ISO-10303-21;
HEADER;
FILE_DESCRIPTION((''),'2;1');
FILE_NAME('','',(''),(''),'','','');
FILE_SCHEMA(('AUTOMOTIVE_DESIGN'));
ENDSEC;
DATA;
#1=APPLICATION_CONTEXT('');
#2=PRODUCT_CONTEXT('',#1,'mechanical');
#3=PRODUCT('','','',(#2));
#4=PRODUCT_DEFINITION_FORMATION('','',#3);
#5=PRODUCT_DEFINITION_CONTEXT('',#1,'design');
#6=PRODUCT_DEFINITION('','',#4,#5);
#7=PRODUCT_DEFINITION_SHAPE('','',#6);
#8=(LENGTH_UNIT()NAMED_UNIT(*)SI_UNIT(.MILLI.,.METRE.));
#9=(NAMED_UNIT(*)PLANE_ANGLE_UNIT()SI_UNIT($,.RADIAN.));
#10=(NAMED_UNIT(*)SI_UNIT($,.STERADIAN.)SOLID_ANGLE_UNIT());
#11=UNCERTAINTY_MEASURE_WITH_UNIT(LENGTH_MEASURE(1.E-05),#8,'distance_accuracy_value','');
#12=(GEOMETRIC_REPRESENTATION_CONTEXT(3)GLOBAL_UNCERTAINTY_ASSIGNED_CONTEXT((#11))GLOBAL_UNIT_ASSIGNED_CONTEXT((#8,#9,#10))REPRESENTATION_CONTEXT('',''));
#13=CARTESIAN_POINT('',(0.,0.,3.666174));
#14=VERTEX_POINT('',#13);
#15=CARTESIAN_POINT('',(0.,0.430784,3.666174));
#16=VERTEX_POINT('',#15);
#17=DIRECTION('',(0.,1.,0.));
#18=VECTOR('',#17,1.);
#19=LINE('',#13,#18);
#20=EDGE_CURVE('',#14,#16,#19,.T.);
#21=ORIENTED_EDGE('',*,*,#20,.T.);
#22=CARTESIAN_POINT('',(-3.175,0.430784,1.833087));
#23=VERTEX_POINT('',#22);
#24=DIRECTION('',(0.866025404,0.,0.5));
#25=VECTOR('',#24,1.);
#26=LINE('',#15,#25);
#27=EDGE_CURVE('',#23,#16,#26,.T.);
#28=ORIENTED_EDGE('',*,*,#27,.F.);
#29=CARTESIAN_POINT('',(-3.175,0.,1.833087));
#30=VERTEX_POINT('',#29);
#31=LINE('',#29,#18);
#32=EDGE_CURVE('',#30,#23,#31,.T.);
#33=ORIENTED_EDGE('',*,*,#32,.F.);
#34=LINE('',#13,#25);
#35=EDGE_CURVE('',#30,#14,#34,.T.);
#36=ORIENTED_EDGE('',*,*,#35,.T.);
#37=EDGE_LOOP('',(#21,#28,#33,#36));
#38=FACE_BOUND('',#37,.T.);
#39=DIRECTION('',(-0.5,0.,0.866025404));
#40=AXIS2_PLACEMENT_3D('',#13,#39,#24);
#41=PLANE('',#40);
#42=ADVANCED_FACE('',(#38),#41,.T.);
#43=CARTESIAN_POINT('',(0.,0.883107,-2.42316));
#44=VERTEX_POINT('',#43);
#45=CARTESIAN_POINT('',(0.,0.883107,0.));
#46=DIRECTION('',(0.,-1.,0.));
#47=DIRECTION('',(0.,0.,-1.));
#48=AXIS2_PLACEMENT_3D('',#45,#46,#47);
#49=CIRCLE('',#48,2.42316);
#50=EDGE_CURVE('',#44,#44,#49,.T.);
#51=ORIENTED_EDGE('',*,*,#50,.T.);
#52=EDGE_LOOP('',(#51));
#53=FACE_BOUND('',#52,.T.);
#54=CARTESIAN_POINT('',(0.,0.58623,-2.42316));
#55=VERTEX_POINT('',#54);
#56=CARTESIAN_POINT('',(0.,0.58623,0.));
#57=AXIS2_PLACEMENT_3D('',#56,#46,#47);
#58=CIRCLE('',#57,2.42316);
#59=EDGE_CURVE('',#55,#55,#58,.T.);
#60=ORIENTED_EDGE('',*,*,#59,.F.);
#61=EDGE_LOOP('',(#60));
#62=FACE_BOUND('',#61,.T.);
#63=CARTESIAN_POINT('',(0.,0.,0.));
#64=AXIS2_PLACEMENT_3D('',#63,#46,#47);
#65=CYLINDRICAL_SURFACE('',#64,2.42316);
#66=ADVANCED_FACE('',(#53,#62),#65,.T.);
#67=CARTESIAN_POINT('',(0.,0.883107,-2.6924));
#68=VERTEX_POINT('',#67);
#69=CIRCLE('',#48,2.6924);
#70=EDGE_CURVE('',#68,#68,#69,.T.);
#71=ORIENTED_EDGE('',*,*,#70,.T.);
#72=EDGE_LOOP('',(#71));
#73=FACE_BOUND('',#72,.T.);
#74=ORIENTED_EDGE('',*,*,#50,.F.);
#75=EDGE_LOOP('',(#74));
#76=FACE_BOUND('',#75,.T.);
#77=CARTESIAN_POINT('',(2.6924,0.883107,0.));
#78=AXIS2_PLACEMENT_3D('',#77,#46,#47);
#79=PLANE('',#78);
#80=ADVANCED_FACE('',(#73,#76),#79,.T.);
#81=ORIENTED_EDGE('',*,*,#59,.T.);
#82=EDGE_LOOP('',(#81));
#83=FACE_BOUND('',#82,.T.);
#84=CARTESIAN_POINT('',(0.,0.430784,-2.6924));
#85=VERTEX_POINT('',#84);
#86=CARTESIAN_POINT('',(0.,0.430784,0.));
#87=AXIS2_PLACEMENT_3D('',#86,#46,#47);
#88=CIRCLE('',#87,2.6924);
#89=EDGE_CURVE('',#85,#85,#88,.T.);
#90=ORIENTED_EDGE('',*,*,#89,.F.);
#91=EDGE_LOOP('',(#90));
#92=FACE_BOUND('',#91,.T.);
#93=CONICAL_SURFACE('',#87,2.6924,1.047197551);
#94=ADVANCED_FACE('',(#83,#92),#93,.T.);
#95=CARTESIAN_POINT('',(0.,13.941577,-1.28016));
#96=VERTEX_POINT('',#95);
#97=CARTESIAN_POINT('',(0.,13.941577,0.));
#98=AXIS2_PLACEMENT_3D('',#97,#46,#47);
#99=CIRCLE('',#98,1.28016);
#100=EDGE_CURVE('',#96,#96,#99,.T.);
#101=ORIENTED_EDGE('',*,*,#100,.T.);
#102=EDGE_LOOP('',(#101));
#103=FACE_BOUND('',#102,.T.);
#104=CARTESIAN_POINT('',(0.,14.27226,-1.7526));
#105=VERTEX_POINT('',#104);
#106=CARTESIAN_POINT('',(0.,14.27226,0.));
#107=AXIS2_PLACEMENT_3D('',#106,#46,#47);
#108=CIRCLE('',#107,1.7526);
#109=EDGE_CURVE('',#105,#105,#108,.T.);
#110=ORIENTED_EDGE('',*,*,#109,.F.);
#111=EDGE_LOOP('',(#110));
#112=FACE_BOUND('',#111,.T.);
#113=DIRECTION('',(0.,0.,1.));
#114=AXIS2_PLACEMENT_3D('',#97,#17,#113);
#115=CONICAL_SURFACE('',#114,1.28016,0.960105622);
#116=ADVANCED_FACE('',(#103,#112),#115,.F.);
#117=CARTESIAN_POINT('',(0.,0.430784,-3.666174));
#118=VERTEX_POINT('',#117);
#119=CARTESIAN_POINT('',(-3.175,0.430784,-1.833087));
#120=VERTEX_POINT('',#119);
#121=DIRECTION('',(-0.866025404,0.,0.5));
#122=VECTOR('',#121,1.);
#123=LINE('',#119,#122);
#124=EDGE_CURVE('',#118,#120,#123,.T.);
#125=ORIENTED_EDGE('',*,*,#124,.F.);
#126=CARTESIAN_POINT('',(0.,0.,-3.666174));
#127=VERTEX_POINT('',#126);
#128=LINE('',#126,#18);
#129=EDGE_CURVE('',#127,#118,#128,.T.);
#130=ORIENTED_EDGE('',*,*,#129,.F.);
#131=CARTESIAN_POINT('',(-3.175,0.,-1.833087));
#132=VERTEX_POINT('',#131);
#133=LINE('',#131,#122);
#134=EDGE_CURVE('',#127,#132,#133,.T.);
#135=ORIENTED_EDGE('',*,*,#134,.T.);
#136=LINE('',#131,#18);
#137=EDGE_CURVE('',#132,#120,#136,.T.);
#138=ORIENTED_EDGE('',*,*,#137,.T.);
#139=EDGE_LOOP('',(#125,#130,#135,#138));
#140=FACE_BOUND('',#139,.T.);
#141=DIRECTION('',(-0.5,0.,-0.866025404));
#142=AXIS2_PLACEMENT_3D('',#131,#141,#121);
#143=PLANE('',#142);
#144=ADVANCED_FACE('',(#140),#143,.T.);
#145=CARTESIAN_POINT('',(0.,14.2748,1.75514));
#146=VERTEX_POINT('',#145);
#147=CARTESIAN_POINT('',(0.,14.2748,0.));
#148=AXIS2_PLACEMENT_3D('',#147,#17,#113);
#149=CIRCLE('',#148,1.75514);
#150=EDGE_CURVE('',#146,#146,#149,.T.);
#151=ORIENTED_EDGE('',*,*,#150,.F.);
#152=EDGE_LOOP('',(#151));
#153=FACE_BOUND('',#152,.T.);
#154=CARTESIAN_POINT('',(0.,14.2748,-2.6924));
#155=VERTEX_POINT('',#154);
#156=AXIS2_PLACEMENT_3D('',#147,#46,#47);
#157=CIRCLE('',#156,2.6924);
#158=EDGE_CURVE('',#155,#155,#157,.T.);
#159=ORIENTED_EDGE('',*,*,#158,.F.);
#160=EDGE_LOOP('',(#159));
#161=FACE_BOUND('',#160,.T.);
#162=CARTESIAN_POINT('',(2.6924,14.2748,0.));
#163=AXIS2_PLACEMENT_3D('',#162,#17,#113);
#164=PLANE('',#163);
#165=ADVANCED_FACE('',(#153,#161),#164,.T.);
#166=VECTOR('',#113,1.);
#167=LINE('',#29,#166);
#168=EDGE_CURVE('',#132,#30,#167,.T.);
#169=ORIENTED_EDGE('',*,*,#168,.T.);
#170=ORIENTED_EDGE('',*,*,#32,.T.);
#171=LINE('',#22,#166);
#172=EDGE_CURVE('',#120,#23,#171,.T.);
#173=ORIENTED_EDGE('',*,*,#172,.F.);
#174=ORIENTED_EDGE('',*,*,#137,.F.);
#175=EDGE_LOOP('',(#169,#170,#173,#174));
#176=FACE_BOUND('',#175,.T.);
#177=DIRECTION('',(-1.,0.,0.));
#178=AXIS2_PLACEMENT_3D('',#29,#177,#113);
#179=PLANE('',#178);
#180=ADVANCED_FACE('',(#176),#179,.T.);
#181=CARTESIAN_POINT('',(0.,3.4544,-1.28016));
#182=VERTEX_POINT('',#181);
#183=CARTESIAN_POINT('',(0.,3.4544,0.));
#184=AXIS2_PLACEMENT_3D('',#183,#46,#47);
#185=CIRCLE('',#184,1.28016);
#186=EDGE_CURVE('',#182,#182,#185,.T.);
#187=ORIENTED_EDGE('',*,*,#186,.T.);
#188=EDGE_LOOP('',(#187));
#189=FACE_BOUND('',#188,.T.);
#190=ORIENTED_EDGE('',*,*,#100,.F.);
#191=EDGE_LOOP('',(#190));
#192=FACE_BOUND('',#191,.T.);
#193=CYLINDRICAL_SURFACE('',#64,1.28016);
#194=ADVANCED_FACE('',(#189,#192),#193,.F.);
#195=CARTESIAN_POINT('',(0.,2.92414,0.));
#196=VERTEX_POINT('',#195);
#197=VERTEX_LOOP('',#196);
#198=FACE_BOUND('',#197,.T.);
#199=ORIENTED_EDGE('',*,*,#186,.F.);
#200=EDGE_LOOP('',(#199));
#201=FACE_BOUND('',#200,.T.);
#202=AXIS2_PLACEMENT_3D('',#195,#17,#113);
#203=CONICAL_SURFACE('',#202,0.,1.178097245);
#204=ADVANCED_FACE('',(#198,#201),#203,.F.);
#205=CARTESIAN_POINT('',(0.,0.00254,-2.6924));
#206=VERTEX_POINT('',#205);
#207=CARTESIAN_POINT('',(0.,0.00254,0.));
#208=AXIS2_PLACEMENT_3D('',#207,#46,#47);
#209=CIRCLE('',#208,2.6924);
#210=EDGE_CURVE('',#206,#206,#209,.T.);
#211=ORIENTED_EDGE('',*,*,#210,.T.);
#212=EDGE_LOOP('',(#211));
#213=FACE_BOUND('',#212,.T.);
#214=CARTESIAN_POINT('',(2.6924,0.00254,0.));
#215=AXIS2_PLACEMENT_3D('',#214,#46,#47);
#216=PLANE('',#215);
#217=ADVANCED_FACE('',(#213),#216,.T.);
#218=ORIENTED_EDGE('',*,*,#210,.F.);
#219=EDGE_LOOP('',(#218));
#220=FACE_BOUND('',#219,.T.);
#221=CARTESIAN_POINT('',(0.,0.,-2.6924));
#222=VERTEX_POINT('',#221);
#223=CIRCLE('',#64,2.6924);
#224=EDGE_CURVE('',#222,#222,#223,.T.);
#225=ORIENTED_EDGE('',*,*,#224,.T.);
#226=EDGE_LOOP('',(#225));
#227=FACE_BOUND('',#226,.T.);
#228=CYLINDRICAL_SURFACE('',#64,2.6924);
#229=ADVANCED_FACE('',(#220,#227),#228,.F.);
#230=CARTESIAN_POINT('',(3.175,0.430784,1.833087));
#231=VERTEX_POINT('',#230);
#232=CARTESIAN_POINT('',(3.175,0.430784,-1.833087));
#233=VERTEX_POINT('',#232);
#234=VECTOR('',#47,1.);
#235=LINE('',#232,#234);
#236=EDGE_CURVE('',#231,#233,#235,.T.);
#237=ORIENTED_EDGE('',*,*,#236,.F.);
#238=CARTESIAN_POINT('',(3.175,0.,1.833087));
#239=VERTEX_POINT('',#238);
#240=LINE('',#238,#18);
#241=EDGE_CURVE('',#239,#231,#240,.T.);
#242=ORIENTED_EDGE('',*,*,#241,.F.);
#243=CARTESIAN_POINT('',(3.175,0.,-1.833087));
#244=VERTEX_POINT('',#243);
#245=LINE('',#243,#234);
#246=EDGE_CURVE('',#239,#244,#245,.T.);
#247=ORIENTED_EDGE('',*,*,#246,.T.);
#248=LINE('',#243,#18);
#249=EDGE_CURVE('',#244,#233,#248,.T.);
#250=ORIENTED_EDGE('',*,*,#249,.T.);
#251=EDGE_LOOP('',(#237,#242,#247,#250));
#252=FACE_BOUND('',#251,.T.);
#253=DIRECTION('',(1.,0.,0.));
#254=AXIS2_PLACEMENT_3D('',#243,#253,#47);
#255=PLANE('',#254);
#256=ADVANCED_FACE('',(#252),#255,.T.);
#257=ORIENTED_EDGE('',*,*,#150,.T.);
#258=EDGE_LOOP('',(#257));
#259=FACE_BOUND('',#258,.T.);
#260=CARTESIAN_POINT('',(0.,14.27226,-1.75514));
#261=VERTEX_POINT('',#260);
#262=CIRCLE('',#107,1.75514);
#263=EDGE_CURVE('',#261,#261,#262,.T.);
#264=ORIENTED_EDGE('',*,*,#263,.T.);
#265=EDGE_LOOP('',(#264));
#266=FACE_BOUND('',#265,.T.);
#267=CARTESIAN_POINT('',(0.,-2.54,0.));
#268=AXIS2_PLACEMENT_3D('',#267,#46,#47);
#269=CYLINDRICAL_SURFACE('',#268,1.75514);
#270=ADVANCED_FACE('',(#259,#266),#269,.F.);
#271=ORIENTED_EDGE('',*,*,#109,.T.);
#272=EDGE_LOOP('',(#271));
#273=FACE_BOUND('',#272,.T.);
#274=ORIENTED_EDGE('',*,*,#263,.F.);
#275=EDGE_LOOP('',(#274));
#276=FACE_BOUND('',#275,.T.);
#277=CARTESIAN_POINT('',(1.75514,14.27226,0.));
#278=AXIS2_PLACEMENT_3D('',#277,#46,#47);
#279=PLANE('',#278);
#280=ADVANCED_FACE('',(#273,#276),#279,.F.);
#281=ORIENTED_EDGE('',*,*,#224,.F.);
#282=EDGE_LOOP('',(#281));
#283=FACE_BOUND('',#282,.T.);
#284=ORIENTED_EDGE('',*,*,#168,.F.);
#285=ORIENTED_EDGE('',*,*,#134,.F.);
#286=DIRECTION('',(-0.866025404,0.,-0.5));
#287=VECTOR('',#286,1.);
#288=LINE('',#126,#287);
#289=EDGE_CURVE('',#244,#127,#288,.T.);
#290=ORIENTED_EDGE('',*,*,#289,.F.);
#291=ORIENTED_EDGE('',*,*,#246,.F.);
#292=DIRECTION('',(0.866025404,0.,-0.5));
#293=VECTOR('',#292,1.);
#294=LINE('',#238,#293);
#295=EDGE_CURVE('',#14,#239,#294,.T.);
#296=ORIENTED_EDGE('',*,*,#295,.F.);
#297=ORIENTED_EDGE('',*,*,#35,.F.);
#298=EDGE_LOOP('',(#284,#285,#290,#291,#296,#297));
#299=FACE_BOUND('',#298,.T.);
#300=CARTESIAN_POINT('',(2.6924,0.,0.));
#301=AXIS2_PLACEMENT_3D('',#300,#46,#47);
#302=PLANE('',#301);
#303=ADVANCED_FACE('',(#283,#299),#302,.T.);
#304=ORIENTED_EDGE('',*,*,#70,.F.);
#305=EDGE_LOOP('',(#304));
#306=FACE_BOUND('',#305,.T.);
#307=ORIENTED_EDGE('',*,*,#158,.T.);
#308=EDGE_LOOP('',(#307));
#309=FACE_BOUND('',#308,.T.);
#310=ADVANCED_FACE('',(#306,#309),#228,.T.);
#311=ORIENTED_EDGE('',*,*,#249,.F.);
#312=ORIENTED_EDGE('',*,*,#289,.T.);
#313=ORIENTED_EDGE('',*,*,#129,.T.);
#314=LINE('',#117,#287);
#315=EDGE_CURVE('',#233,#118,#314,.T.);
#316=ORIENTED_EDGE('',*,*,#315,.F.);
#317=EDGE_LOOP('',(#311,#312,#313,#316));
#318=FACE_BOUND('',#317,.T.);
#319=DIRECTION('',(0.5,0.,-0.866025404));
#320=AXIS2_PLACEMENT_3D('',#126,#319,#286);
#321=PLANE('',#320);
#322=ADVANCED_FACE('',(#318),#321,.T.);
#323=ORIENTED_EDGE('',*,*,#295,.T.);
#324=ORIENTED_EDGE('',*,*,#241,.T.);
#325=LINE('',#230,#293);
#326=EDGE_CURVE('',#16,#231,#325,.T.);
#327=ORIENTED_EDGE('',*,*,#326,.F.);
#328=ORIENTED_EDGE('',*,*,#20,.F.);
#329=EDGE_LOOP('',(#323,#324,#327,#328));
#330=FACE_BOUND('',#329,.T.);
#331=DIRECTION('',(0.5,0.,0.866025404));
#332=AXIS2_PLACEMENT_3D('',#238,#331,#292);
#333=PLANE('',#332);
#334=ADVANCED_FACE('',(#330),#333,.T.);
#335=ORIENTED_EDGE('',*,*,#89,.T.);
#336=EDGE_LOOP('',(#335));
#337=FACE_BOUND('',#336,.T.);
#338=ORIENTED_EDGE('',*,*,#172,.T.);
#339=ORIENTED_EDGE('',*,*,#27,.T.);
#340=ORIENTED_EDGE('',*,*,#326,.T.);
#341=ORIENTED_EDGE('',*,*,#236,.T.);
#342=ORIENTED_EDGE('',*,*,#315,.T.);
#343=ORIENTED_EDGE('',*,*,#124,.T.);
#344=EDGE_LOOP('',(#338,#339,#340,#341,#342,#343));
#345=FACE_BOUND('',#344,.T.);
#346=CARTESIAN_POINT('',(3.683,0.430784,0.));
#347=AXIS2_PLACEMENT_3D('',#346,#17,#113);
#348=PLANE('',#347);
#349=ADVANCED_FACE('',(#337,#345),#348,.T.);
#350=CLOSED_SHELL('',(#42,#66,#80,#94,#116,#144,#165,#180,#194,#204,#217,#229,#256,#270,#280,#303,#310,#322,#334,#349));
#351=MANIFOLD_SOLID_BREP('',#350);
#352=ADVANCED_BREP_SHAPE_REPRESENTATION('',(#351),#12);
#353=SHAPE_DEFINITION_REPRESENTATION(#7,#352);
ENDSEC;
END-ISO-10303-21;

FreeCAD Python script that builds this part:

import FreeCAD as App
import Part
import Sketcher
from FreeCAD import Vector
Q = App.Units.Quantity

doc = App.newDocument("Part")
body = doc.addObject("PartDesign::Body", "Body")

# Sketch on XY plane
sketch1 = doc.addObject("Sketcher::SketchObject", "Sketch")
body.addObject(sketch1)
sketch1.AttachmentSupport = (doc.XY_Plane, [""])
sketch1.MapMode = "FlatFace"
sketch1.addGeometry(Part.LineSegment(Vector(2.6924, 0, 0), Vector(3.683, 0, 0)), False)
sketch1.addGeometry(Part.LineSegment(Vector(3.683, 0, 0), Vector(3.683, 0.4308, 0)), False)
sketch1.addGeometry(Part.LineSegment(Vector(3.683, 0.4308, 0), Vector(2.6924, 0.4308, 0)), False)
sketch1.addGeometry(Part.LineSegment(Vector(2.6924, 0.4308, 0), Vector(2.4232, 0.5862, 0)), False)
sketch1.addGeometry(Part.LineSegment(Vector(2.4232, 0.5862, 0), Vector(2.4232, 0.8831, 0)), False)
sketch1.addGeometry(Part.LineSegment(Vector(2.4232, 0.8831, 0), Vector(2.6924, 0.8831, 0)), False)
sketch1.addGeometry(Part.LineSegment(Vector(2.6924, 0.8831, 0), Vector(2.6924, 14.2748, 0)), False)
sketch1.addGeometry(Part.LineSegment(Vector(2.6924, 14.2748, 0), Vector(1.2802, 14.2748, 0)), False)
sketch1.addGeometry(Part.LineSegment(Vector(1.2802, 14.2748, 0), Vector(1.2802, 7.4168, 0)), False)
sketch1.addGeometry(Part.LineSegment(Vector(1.2802, 7.4168, 0), Vector(0, 7.4168, 0)), False)
sketch1.addGeometry(Part.LineSegment(Vector(0, 7.4168, 0), Vector(0, 0.0025, 0)), False)
sketch1.addGeometry(Part.LineSegment(Vector(0, 0.0025, 0), Vector(2.6924, 0.0025, 0)), False)
sketch1.addGeometry(Part.LineSegment(Vector(2.6924, 0.0025, 0), Vector(2.6924, 0, 0)), False)
sketch1.addConstraint(Sketcher.Constraint("Coincident", 0, 2, 1, 1))
sketch1.addConstraint(Sketcher.Constraint("Coincident", 1, 2, 2, 1))
sketch1.addConstraint(Sketcher.Constraint("Coincident", 2, 2, 3, 1))
sketch1.addConstraint(Sketcher.Constraint("Coincident", 3, 2, 4, 1))
sketch1.addConstraint(Sketcher.Constraint("Coincident", 4, 2, 5, 1))
sketch1.addConstraint(Sketcher.Constraint("Coincident", 5, 2, 6, 1))
sketch1.addConstraint(Sketcher.Constraint("Coincident", 6, 2, 7, 1))
sketch1.addConstraint(Sketcher.Constraint("Coincident", 7, 2, 8, 1))
sketch1.addConstraint(Sketcher.Constraint("Coincident", 8, 2, 9, 1))
sketch1.addConstraint(Sketcher.Constraint("Coincident", 9, 2, 10, 1))
sketch1.addConstraint(Sketcher.Constraint("Coincident", 10, 2, 11, 1))
sketch1.addConstraint(Sketcher.Constraint("Coincident", 11, 2, 12, 1))
sketch1.addConstraint(Sketcher.Constraint("Coincident", 12, 2, 0, 1))
sketch1.addConstraint(Sketcher.Constraint("Horizontal", 0))
sketch1.addConstraint(Sketcher.Constraint("Vertical", 1))
sketch1.addConstraint(Sketcher.Constraint("Horizontal", 2))
sketch1.addConstraint(Sketcher.Constraint("Vertical", 4))
sketch1.addConstraint(Sketcher.Constraint("Horizontal", 5))
sketch1.addConstraint(Sketcher.Constraint("Vertical", 6))
sketch1.addConstraint(Sketcher.Constraint("Horizontal", 7))
sketch1.addConstraint(Sketcher.Constraint("Vertical", 8))
sketch1.addConstraint(Sketcher.Constraint("Horizontal", 9))
sketch1.addConstraint(Sketcher.Constraint("Vertical", 10))
sketch1.addConstraint(Sketcher.Constraint("Horizontal", 11))
sketch1.addConstraint(Sketcher.Constraint("Vertical", 12))
sketch1.addConstraint(Sketcher.Constraint("PointOnObject", 0, 2, -1))
sketch1.addConstraint(Sketcher.Constraint("PointOnObject", 9, 2, -2))
sketch1.addConstraint(Sketcher.Constraint("Vertical", 2, 2, 5, 2))
sketch1.addConstraint(Sketcher.Constraint("Vertical", 6, 2, 11, 2))
sketch1.addConstraint(Sketcher.Constraint("Angle", 3, Q("150 deg")))
sketch1.addConstraint(Sketcher.Constraint("DistanceY", 8, 2, 8, 1, Q("0.27 in")))
sketch1.addConstraint(Sketcher.Constraint("DistanceX", 0, 1, 0, 2, Q("0.039 in")))
sketch1.addConstraint(Sketcher.Constraint("DistanceX", 11, 1, 11, 2, Q("0.106 in")))
sketch1.addConstraint(Sketcher.Constraint("DistanceX", 5, 1, 5, 2, Q("0.0106 in")))
sketch1.addConstraint(Sketcher.Constraint("DistanceX", 7, 2, 7, 1, Q("0.0556 in")))
sketch1.addConstraint(Sketcher.Constraint("DistanceY", 10, 2, 10, 1, Q("0.2919 in")))
sketch1.addConstraint(Sketcher.Constraint("DistanceY", 12, 2, 12, 1, Q("0.0001 in")))
sketch1.addConstraint(Sketcher.Constraint("DistanceY", 1, 1, 1, 2, Q("0.430784 mm")))
sketch1.addConstraint(Sketcher.Constraint("DistanceY", 4, 1, 4, 2, Q("0.296877 mm")))
revolution = doc.addObject("PartDesign::Revolution", "Revolution")
body.addObject(revolution)
revolution.Profile = sketch1
revolution.ReferenceAxis = (sketch1, ["V_Axis"])
revolution.Angle = 360

# Sketch on XY plane
sketch2 = doc.addObject("Sketcher::SketchObject", "Sketch001")
body.addObject(sketch2)
sketch2.AttachmentSupport = (doc.XY_Plane, [""])
sketch2.MapMode = "FlatFace"
sketch2.addGeometry(Part.LineSegment(Vector(1.3, 3.5, 0), Vector(1.3, 14.3, 0)), False)
sketch2.addGeometry(Part.LineSegment(Vector(1.3, 14.3, 0), Vector(0, 14.3, 0)), False)
sketch2.addGeometry(Part.LineSegment(Vector(0, 14.3, 0), Vector(0, 2.9, 0)), False)
sketch2.addGeometry(Part.LineSegment(Vector(0, 2.9, 0), Vector(1.3, 3.5, 0)), False)
sketch2.addConstraint(Sketcher.Constraint("Coincident", 0, 2, 1, 1))
sketch2.addConstraint(Sketcher.Constraint("Coincident", 1, 2, 2, 1))
sketch2.addConstraint(Sketcher.Constraint("Coincident", 2, 2, 3, 1))
sketch2.addConstraint(Sketcher.Constraint("Coincident", 3, 2, 0, 1))
sketch2.addConstraint(Sketcher.Constraint("Vertical", 0))
sketch2.addConstraint(Sketcher.Constraint("Horizontal", 1))
sketch2.addConstraint(Sketcher.Constraint("Vertical", 2))
sketch2.addConstraint(Sketcher.Constraint("PointOnObject", 1, 2, -2))
sketch2.addConstraint(Sketcher.Constraint("Angle", 3, Q("22.5 deg")))
sketch2.addConstraint(Sketcher.Constraint("DistanceY", 0, 1, 0, 2, Q("0.426 in")))
sketch2.addConstraint(Sketcher.Constraint("DistanceX", 1, 2, 1, 1, Q("0.0504 in")))
sketch2.addConstraint(Sketcher.Constraint("DistanceY", -1, 1, 0, 2, Q("0.562 in")))
groove = doc.addObject("PartDesign::Groove", "Groove")
body.addObject(groove)
groove.Profile = sketch2
groove.ReferenceAxis = (sketch2, ["V_Axis"])
groove.Angle = 360

# Sketch on XY plane
sketch3 = doc.addObject("Sketcher::SketchObject", "Sketch002")
body.addObject(sketch3)
sketch3.AttachmentSupport = (doc.XY_Plane, [""])
sketch3.MapMode = "FlatFace"
sketch3.addGeometry(Part.LineSegment(Vector(1.7551, 14.2723, 0), Vector(1.7551, 14.5288, 0)), False)
sketch3.addGeometry(Part.LineSegment(Vector(1.7551, 14.5288, 0), Vector(1.2802, 14.5288, 0)), False)
sketch3.addGeometry(Part.LineSegment(Vector(1.2802, 14.5288, 0), Vector(1.2802, 13.9416, 0)), False)
sketch3.addGeometry(Part.LineSegment(Vector(1.2802, 13.9416, 0), Vector(1.7526, 14.2723, 0)), False)
sketch3.addGeometry(Part.LineSegment(Vector(1.7526, 14.2723, 0), Vector(1.7551, 14.2723, 0)), False)
sketch3.addConstraint(Sketcher.Constraint("Coincident", 0, 2, 1, 1))
sketch3.addConstraint(Sketcher.Constraint("Coincident", 1, 2, 2, 1))
sketch3.addConstraint(Sketcher.Constraint("Coincident", 2, 2, 3, 1))
sketch3.addConstraint(Sketcher.Constraint("Coincident", 3, 2, 4, 1))
sketch3.addConstraint(Sketcher.Constraint("Coincident", 4, 2, 0, 1))
sketch3.addConstraint(Sketcher.Constraint("Vertical", 0))
sketch3.addConstraint(Sketcher.Constraint("Horizontal", 1))
sketch3.addConstraint(Sketcher.Constraint("Vertical", 2))
sketch3.addConstraint(Sketcher.Constraint("Horizontal", 4))
sketch3.addConstraint(Sketcher.Constraint("Angle", 3, Q("34.99 deg")))
sketch3.addConstraint(Sketcher.Constraint("DistanceX", 1, 2, 1, 1, Q("0.0187 in")))
sketch3.addConstraint(Sketcher.Constraint("DistanceX", 4, 1, 4, 2, Q("0.0001 in")))
sketch3.addConstraint(Sketcher.Constraint("DistanceY", 0, 1, 0, 2, Q("0.0101 in")))
sketch3.addConstraint(Sketcher.Constraint("DistanceY", -1, 1, 0, 2, Q("0.572 in")))
sketch3.addConstraint(Sketcher.Constraint("DistanceX", -1, 1, 3, 2, Q("0.069 in")))
groove2 = doc.addObject("PartDesign::Groove", "Groove001")
body.addObject(groove2)
groove2.Profile = sketch3
groove2.ReferenceAxis = (sketch3, ["V_Axis"])
groove2.Angle = 360

# Sketch on XZ plane
sketch4 = doc.addObject("Sketcher::SketchObject", "Sketch003")
body.addObject(sketch4)
sketch4.AttachmentSupport = (doc.XZ_Plane, [""])
sketch4.MapMode = "FlatFace"
sketch4.AttachmentOffset = App.Placement(Vector(0, 0, -0.430784), App.Rotation())
sketch4.addGeometry(Part.Circle(Vector(0, 0, 0), Vector(0, 0, 1), 3.7), False)
sketch4.addGeometry(Part.LineSegment(Vector(3.2, 1.8, 0), Vector(0, 3.7, 0)), False)
sketch4.addGeometry(Part.LineSegment(Vector(0, 3.7, 0), Vector(-3.2, 1.8, 0)), False)
sketch4.addGeometry(Part.LineSegment(Vector(-3.2, 1.8, 0), Vector(-3.2, -1.8, 0)), False)
sketch4.addGeometry(Part.LineSegment(Vector(-3.2, -1.8, 0), Vector(0, -3.7, 0)), False)
sketch4.addGeometry(Part.LineSegment(Vector(0, -3.7, 0), Vector(3.2, -1.8, 0)), False)
sketch4.addGeometry(Part.LineSegment(Vector(3.2, -1.8, 0), Vector(3.2, 1.8, 0)), False)
sketch4.addConstraint(Sketcher.Constraint("Coincident", 1, 2, 2, 1))
sketch4.addConstraint(Sketcher.Constraint("Coincident", 2, 2, 3, 1))
sketch4.addConstraint(Sketcher.Constraint("Coincident", 3, 2, 4, 1))
sketch4.addConstraint(Sketcher.Constraint("Coincident", 4, 2, 5, 1))
sketch4.addConstraint(Sketcher.Constraint("Coincident", 5, 2, 6, 1))
sketch4.addConstraint(Sketcher.Constraint("Coincident", 6, 2, 1, 1))
sketch4.addConstraint(Sketcher.Constraint("Vertical", 3))
sketch4.addConstraint(Sketcher.Constraint("Vertical", 6))
sketch4.addConstraint(Sketcher.Constraint("Coincident", 0, 3, -1, 1))
sketch4.addConstraint(Sketcher.Constraint("Symmetric", 1, 2, 4, 2, -1, 1))
sketch4.addConstraint(Sketcher.Constraint("Symmetric", 2, 2, 5, 2, -1, 1))
sketch4.addConstraint(Sketcher.Constraint("PointOnObject", 1, 2, -2))
sketch4.addConstraint(Sketcher.Constraint("Parallel", 1, 4))
sketch4.addConstraint(Sketcher.Constraint("Horizontal", 3, 2, 5, 2))
sketch4.addConstraint(Sketcher.Constraint("Diameter", 0, Q("0.291 in")))
sketch4.addConstraint(Sketcher.Constraint("Angle", 1, Q("150 deg")))
sketch4.addConstraint(Sketcher.Constraint("DistanceX", 3, 2, 5, 2, Q("0.25 in")))
sketch4.addConstraint(Sketcher.Constraint("DistanceY", 3, 2, 3, 1, Q("3.666174 mm")))
pocket1 = doc.addObject("PartDesign::Pocket", "Pocket")
body.addObject(pocket1)
pocket1.Profile = sketch4
pocket1.Length = 0.430784
pocket1.Reversed = True

doc.recompute()
